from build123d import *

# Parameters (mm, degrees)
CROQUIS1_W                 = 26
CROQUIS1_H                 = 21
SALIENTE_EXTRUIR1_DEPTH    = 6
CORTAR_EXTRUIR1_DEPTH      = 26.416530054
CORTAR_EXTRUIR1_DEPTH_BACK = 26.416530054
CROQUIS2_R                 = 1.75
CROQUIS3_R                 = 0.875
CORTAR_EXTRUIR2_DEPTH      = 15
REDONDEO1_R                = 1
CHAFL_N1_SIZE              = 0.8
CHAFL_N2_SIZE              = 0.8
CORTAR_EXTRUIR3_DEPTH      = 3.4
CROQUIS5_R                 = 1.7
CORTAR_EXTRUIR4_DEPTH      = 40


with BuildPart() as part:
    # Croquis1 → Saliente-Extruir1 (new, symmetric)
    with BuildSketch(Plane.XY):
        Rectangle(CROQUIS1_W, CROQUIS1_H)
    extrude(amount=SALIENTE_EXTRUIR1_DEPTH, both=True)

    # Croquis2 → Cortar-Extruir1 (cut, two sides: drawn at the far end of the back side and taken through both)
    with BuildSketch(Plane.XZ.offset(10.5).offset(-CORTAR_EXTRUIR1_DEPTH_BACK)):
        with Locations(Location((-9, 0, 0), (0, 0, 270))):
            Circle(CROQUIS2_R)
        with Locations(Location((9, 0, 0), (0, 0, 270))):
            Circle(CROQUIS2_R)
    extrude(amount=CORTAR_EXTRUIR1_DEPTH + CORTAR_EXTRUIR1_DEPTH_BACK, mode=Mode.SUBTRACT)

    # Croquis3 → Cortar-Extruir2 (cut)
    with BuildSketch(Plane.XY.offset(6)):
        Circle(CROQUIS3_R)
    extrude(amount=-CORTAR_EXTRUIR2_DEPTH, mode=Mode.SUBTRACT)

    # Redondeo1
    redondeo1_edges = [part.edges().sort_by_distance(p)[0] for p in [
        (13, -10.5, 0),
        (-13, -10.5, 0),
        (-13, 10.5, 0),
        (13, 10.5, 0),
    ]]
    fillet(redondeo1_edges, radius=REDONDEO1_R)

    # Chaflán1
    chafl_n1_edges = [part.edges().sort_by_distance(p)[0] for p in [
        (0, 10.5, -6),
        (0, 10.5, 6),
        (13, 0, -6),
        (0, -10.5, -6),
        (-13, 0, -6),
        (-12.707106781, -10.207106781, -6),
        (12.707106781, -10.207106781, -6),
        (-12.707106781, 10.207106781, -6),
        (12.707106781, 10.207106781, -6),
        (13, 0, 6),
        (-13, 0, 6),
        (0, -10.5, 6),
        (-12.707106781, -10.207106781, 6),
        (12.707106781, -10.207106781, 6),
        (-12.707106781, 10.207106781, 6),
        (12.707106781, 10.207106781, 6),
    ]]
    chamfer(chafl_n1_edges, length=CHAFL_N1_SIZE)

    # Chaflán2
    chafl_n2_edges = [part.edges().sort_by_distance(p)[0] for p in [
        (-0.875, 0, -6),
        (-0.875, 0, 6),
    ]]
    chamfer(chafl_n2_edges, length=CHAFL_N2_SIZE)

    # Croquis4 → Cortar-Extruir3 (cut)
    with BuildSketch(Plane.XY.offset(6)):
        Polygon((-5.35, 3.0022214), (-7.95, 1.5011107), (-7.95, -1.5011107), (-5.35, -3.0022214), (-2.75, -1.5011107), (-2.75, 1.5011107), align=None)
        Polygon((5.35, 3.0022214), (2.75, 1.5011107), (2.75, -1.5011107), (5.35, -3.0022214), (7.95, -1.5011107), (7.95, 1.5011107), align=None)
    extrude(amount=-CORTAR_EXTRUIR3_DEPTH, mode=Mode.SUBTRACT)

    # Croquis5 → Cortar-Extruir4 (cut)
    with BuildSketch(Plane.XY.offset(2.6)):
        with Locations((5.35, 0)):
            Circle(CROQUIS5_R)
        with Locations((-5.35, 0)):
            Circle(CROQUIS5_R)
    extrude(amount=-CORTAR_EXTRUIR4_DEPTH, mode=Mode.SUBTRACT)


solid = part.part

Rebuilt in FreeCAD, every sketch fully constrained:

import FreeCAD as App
import Part
import Sketcher

V = App.Vector
Q = App.Units.Quantity


def edges_at(feature, points):
    """Names of the edges that pass closest to the given points."""
    edges = feature.Shape.Edges
    near = lambda p: min(range(len(edges)), key=lambda i: edges[i].distToShape(Part.Vertex(*p))[0])
    return sorted({f"Edge{near(p) + 1}" for p in points})


def add_polygon(sketch, points):
    """Adds a closed chain of lines whose ends are joined by coincident constraints."""
    first, n = sketch.GeometryCount, len(points)
    for a, b in zip(points, points[1:] + points[:1]):
        sketch.addGeometry(Part.LineSegment(App.Vector(*a, 0), App.Vector(*b, 0)), False)
    for i in range(n):
        sketch.addConstraint(Sketcher.Constraint("Coincident", first + i, 2, first + (i + 1) % n, 1))

doc = App.newDocument("Part")
params = doc.addObject("Spreadsheet::Sheet", "Params")
for row, (alias, value) in enumerate([
    ("sketch1_width", "26 mm"),
    ("sketch1_height", "21 mm"),
    ("pad1_length", "12 mm"),
    ("sketch2_diameter", "3.5 mm"),
    ("sketch3_diameter", "1.75 mm"),
    ("pocket2_length", "15 mm"),
    ("fillet_radius", "1 mm"),
    ("chamfer_size", "0.8 mm"),
    ("chamfer2_size", "0.8 mm"),
    ("pocket3_length", "3.4 mm"),
    ("sketch5_diameter", "3.4 mm"),
    ("pocket4_length", "40 mm"),
], start=1):
    params.set(f"A{row}", alias)
    params.set(f"B{row}", "=" + value)
    params.setAlias(f"B{row}", alias)

body = doc.addObject("PartDesign::Body", "Body")

# Sketch on XY plane
sketch1 = body.newObject("Sketcher::SketchObject", "Sketch")
sketch1.AttachmentSupport = (doc.getObject("XY_Plane"), [""])
sketch1.MapMode = "FlatFace"
add_polygon(sketch1, [(-13, 10), (-13, -10), (13, -10), (13, 10)])  # lines 0-3
sketch1.addConstraint(Sketcher.Constraint("Vertical", 0))
sketch1.addConstraint(Sketcher.Constraint("Horizontal", 1))
sketch1.addConstraint(Sketcher.Constraint("Vertical", 2))
sketch1.addConstraint(Sketcher.Constraint("Horizontal", 3))
sketch1.addConstraint(Sketcher.Constraint("Symmetric", 0, 2, 2, 2, -1, 1))
sketch1.addConstraint(Sketcher.Constraint("DistanceX", 1, 1, 1, 2, 26.0))
sketch1.addConstraint(Sketcher.Constraint("DistanceY", 0, 2, 0, 1, 21.0))
sketch1.setExpression("Constraints[9]", "Params.sketch1_width")
sketch1.setExpression("Constraints[10]", "Params.sketch1_height")
pad1 = body.newObject("PartDesign::Pad", "Pad")
pad1.Profile = sketch1
pad1.setExpression("Length", "Params.pad1_length")
pad1.Midplane = True

# Sketch on XZ plane
sketch2 = body.newObject("Sketcher::SketchObject", "Sketch001")
sketch2.AttachmentSupport = (doc.getObject("XZ_Plane"), [""])
sketch2.MapMode = "FlatFace"
sketch2.AttachmentOffset = App.Placement(V(0, 0, 10.5), App.Rotation())
sketch2.addGeometry(Part.Circle(V(-9, 0, 0), V(0, 0, 1), 1.8), False)
sketch2.addGeometry(Part.Circle(V(9, 0, 0), V(0, 0, 1), 1.8), False)
sketch2.addConstraint(Sketcher.Constraint("Equal", 0, 1))
sketch2.addConstraint(Sketcher.Constraint("Symmetric", 0, 3, 1, 3, -1, 1))
sketch2.addConstraint(Sketcher.Constraint("PointOnObject", 0, 3, -1))
sketch2.addConstraint(Sketcher.Constraint("Diameter", 0, 3.5))
sketch2.addConstraint(Sketcher.Constraint("DistanceX", 0, 3, -1, 1, 9.0))
sketch2.setExpression("Constraints[3]", "Params.sketch2_diameter")
pocket1 = body.newObject("PartDesign::Pocket", "Pocket")
pocket1.Profile = sketch2
pocket1.Type = "ThroughAll"
pocket1.Midplane = True

# Sketch on XY plane
sketch3 = body.newObject("Sketcher::SketchObject", "Sketch002")
sketch3.AttachmentSupport = (doc.getObject("XY_Plane"), [""])
sketch3.MapMode = "FlatFace"
sketch3.AttachmentOffset = App.Placement(V(0, 0, 6), App.Rotation())
sketch3.addGeometry(Part.Circle(V(0, 0, 0), V(0, 0, 1), 0.9), False)
sketch3.addConstraint(Sketcher.Constraint("Coincident", 0, 3, -1, 1))
sketch3.addConstraint(Sketcher.Constraint("Diameter", 0, 1.75))
sketch3.setExpression("Constraints[1]", "Params.sketch3_diameter")
pocket2 = body.newObject("PartDesign::Pocket", "Pocket001")
pocket2.Profile = sketch3
pocket2.setExpression("Length", "Params.pocket2_length")
doc.recompute()

fillet = body.newObject("PartDesign::Fillet", "Fillet")
fillet.Base = (pocket2, edges_at(pocket2, [
    (13, -10.5, 0),
    (-13, -10.5, 0),
    (-13, 10.5, 0),
    (13, 10.5, 0),
]))
fillet.setExpression("Radius", "Params.fillet_radius")
doc.recompute()

chamfer = body.newObject("PartDesign::Chamfer", "Chamfer")
chamfer.Base = (fillet, edges_at(fillet, [
    (0, 10.5, -6),
    (0, 10.5, 6),
    (13, 0, -6),
    (0, -10.5, -6),
    (-13, 0, -6),
    (-12.707, -10.207, -6),
    (12.707, -10.207, -6),
    (-12.707, 10.207, -6),
    (12.707, 10.207, -6),
    (13, 0, 6),
    (-13, 0, 6),
    (0, -10.5, 6),
    (-12.707, -10.207, 6),
    (12.707, -10.207, 6),
    (-12.707, 10.207, 6),
    (12.707, 10.207, 6),
]))
chamfer.setExpression("Size", "Params.chamfer_size")
doc.recompute()

chamfer2 = body.newObject("PartDesign::Chamfer", "Chamfer001")
chamfer2.Base = (chamfer, edges_at(chamfer, [(-0.875, 0, -6), (-0.875, 0, 6)]))
chamfer2.setExpression("Size", "Params.chamfer2_size")

# Sketch on XY plane
sketch4 = body.newObject("Sketcher::SketchObject", "Sketch003")
sketch4.AttachmentSupport = (doc.getObject("XY_Plane"), [""])
sketch4.MapMode = "FlatFace"
sketch4.AttachmentOffset = App.Placement(V(0, 0, 6), App.Rotation())
add_polygon(sketch4, [(-5.3, 3), (-8, 1.5), (-8, -1.5), (-5.3, -3), (-2.8, -1.5), (-2.8, 1.5)])  # lines 0-5
add_polygon(sketch4, [(5.3, 3), (2.8, 1.5), (2.8, -1.5), (5.3, -3), (8, -1.5), (8, 1.5)])  # lines 6-11
sketch4.addConstraint(Sketcher.Constraint("Vertical", 1))
sketch4.addConstraint(Sketcher.Constraint("Vertical", 4))
sketch4.addConstraint(Sketcher.Constraint("Vertical", 7))
sketch4.addConstraint(Sketcher.Constraint("Vertical", 10))
sketch4.addConstraint(Sketcher.Constraint("Symmetric", 3, 2, 6, 2, -1, 1))
sketch4.addConstraint(Sketcher.Constraint("Symmetric", 5, 2, 8, 2, -1, 1))
sketch4.addConstraint(Sketcher.Constraint("Symmetric", 0, 2, 9, 2, -1, 1))
sketch4.addConstraint(Sketcher.Constraint("Symmetric", 2, 2, 11, 2, -1, 1))
sketch4.addConstraint(Sketcher.Constraint("Symmetric", 2, 2, 8, 2, -2))
sketch4.addConstraint(Sketcher.Constraint("Parallel", 0, 3))
sketch4.addConstraint(Sketcher.Constraint("Parallel", 2, 5))
sketch4.addConstraint(Sketcher.Constraint("Parallel", 5, 8))
sketch4.addConstraint(Sketcher.Constraint("Parallel", 8, 11))
sketch4.addConstraint(Sketcher.Constraint("Horizontal", 1, 2, 3, 2))
sketch4.addConstraint(Sketcher.Constraint("Horizontal", 0, 2, 4, 2))
sketch4.addConstraint(Sketcher.Constraint("Angle", 0, Q("-150 deg")))
sketch4.addConstraint(Sketcher.Constraint("DistanceX", 1, 2, 2, 2, 2.6))
sketch4.addConstraint(Sketcher.Constraint("DistanceX", 4, 2, 6, 2, 5.5))
sketch4.addConstraint(Sketcher.Constraint("DistanceY", 1, 2, 1, 1, 3.002221))
pocket3 = body.newObject("PartDesign::Pocket", "Pocket002")
pocket3.Profile = sketch4
pocket3.setExpression("Length", "Params.pocket3_length")

# Sketch on XY plane
sketch5 = body.newObject("Sketcher::SketchObject", "Sketch004")
sketch5.AttachmentSupport = (doc.getObject("XY_Plane"), [""])
sketch5.MapMode = "FlatFace"
sketch5.AttachmentOffset = App.Placement(V(0, 0, 2.6), App.Rotation())
sketch5.addGeometry(Part.Circle(V(5.3, 0, 0), V(0, 0, 1), 1.7), False)
sketch5.addGeometry(Part.Circle(V(-5.3, 0, 0), V(0, 0, 1), 1.7), False)
sketch5.addConstraint(Sketcher.Constraint("Equal", 0, 1))
sketch5.addConstraint(Sketcher.Constraint("Symmetric", 0, 3, 1, 3, -1, 1))
sketch5.addConstraint(Sketcher.Constraint("PointOnObject", 0, 3, -1))
sketch5.addConstraint(Sketcher.Constraint("Diameter", 0, 3.4))
sketch5.addConstraint(Sketcher.Constraint("DistanceX", 1, 3, 0, 3, 10.7))
sketch5.setExpression("Constraints[3]", "Params.sketch5_diameter")
pocket4 = body.newObject("PartDesign::Pocket", "Pocket003")
pocket4.Profile = sketch5
pocket4.setExpression("Length", "Params.pocket4_length")

doc.recompute()
